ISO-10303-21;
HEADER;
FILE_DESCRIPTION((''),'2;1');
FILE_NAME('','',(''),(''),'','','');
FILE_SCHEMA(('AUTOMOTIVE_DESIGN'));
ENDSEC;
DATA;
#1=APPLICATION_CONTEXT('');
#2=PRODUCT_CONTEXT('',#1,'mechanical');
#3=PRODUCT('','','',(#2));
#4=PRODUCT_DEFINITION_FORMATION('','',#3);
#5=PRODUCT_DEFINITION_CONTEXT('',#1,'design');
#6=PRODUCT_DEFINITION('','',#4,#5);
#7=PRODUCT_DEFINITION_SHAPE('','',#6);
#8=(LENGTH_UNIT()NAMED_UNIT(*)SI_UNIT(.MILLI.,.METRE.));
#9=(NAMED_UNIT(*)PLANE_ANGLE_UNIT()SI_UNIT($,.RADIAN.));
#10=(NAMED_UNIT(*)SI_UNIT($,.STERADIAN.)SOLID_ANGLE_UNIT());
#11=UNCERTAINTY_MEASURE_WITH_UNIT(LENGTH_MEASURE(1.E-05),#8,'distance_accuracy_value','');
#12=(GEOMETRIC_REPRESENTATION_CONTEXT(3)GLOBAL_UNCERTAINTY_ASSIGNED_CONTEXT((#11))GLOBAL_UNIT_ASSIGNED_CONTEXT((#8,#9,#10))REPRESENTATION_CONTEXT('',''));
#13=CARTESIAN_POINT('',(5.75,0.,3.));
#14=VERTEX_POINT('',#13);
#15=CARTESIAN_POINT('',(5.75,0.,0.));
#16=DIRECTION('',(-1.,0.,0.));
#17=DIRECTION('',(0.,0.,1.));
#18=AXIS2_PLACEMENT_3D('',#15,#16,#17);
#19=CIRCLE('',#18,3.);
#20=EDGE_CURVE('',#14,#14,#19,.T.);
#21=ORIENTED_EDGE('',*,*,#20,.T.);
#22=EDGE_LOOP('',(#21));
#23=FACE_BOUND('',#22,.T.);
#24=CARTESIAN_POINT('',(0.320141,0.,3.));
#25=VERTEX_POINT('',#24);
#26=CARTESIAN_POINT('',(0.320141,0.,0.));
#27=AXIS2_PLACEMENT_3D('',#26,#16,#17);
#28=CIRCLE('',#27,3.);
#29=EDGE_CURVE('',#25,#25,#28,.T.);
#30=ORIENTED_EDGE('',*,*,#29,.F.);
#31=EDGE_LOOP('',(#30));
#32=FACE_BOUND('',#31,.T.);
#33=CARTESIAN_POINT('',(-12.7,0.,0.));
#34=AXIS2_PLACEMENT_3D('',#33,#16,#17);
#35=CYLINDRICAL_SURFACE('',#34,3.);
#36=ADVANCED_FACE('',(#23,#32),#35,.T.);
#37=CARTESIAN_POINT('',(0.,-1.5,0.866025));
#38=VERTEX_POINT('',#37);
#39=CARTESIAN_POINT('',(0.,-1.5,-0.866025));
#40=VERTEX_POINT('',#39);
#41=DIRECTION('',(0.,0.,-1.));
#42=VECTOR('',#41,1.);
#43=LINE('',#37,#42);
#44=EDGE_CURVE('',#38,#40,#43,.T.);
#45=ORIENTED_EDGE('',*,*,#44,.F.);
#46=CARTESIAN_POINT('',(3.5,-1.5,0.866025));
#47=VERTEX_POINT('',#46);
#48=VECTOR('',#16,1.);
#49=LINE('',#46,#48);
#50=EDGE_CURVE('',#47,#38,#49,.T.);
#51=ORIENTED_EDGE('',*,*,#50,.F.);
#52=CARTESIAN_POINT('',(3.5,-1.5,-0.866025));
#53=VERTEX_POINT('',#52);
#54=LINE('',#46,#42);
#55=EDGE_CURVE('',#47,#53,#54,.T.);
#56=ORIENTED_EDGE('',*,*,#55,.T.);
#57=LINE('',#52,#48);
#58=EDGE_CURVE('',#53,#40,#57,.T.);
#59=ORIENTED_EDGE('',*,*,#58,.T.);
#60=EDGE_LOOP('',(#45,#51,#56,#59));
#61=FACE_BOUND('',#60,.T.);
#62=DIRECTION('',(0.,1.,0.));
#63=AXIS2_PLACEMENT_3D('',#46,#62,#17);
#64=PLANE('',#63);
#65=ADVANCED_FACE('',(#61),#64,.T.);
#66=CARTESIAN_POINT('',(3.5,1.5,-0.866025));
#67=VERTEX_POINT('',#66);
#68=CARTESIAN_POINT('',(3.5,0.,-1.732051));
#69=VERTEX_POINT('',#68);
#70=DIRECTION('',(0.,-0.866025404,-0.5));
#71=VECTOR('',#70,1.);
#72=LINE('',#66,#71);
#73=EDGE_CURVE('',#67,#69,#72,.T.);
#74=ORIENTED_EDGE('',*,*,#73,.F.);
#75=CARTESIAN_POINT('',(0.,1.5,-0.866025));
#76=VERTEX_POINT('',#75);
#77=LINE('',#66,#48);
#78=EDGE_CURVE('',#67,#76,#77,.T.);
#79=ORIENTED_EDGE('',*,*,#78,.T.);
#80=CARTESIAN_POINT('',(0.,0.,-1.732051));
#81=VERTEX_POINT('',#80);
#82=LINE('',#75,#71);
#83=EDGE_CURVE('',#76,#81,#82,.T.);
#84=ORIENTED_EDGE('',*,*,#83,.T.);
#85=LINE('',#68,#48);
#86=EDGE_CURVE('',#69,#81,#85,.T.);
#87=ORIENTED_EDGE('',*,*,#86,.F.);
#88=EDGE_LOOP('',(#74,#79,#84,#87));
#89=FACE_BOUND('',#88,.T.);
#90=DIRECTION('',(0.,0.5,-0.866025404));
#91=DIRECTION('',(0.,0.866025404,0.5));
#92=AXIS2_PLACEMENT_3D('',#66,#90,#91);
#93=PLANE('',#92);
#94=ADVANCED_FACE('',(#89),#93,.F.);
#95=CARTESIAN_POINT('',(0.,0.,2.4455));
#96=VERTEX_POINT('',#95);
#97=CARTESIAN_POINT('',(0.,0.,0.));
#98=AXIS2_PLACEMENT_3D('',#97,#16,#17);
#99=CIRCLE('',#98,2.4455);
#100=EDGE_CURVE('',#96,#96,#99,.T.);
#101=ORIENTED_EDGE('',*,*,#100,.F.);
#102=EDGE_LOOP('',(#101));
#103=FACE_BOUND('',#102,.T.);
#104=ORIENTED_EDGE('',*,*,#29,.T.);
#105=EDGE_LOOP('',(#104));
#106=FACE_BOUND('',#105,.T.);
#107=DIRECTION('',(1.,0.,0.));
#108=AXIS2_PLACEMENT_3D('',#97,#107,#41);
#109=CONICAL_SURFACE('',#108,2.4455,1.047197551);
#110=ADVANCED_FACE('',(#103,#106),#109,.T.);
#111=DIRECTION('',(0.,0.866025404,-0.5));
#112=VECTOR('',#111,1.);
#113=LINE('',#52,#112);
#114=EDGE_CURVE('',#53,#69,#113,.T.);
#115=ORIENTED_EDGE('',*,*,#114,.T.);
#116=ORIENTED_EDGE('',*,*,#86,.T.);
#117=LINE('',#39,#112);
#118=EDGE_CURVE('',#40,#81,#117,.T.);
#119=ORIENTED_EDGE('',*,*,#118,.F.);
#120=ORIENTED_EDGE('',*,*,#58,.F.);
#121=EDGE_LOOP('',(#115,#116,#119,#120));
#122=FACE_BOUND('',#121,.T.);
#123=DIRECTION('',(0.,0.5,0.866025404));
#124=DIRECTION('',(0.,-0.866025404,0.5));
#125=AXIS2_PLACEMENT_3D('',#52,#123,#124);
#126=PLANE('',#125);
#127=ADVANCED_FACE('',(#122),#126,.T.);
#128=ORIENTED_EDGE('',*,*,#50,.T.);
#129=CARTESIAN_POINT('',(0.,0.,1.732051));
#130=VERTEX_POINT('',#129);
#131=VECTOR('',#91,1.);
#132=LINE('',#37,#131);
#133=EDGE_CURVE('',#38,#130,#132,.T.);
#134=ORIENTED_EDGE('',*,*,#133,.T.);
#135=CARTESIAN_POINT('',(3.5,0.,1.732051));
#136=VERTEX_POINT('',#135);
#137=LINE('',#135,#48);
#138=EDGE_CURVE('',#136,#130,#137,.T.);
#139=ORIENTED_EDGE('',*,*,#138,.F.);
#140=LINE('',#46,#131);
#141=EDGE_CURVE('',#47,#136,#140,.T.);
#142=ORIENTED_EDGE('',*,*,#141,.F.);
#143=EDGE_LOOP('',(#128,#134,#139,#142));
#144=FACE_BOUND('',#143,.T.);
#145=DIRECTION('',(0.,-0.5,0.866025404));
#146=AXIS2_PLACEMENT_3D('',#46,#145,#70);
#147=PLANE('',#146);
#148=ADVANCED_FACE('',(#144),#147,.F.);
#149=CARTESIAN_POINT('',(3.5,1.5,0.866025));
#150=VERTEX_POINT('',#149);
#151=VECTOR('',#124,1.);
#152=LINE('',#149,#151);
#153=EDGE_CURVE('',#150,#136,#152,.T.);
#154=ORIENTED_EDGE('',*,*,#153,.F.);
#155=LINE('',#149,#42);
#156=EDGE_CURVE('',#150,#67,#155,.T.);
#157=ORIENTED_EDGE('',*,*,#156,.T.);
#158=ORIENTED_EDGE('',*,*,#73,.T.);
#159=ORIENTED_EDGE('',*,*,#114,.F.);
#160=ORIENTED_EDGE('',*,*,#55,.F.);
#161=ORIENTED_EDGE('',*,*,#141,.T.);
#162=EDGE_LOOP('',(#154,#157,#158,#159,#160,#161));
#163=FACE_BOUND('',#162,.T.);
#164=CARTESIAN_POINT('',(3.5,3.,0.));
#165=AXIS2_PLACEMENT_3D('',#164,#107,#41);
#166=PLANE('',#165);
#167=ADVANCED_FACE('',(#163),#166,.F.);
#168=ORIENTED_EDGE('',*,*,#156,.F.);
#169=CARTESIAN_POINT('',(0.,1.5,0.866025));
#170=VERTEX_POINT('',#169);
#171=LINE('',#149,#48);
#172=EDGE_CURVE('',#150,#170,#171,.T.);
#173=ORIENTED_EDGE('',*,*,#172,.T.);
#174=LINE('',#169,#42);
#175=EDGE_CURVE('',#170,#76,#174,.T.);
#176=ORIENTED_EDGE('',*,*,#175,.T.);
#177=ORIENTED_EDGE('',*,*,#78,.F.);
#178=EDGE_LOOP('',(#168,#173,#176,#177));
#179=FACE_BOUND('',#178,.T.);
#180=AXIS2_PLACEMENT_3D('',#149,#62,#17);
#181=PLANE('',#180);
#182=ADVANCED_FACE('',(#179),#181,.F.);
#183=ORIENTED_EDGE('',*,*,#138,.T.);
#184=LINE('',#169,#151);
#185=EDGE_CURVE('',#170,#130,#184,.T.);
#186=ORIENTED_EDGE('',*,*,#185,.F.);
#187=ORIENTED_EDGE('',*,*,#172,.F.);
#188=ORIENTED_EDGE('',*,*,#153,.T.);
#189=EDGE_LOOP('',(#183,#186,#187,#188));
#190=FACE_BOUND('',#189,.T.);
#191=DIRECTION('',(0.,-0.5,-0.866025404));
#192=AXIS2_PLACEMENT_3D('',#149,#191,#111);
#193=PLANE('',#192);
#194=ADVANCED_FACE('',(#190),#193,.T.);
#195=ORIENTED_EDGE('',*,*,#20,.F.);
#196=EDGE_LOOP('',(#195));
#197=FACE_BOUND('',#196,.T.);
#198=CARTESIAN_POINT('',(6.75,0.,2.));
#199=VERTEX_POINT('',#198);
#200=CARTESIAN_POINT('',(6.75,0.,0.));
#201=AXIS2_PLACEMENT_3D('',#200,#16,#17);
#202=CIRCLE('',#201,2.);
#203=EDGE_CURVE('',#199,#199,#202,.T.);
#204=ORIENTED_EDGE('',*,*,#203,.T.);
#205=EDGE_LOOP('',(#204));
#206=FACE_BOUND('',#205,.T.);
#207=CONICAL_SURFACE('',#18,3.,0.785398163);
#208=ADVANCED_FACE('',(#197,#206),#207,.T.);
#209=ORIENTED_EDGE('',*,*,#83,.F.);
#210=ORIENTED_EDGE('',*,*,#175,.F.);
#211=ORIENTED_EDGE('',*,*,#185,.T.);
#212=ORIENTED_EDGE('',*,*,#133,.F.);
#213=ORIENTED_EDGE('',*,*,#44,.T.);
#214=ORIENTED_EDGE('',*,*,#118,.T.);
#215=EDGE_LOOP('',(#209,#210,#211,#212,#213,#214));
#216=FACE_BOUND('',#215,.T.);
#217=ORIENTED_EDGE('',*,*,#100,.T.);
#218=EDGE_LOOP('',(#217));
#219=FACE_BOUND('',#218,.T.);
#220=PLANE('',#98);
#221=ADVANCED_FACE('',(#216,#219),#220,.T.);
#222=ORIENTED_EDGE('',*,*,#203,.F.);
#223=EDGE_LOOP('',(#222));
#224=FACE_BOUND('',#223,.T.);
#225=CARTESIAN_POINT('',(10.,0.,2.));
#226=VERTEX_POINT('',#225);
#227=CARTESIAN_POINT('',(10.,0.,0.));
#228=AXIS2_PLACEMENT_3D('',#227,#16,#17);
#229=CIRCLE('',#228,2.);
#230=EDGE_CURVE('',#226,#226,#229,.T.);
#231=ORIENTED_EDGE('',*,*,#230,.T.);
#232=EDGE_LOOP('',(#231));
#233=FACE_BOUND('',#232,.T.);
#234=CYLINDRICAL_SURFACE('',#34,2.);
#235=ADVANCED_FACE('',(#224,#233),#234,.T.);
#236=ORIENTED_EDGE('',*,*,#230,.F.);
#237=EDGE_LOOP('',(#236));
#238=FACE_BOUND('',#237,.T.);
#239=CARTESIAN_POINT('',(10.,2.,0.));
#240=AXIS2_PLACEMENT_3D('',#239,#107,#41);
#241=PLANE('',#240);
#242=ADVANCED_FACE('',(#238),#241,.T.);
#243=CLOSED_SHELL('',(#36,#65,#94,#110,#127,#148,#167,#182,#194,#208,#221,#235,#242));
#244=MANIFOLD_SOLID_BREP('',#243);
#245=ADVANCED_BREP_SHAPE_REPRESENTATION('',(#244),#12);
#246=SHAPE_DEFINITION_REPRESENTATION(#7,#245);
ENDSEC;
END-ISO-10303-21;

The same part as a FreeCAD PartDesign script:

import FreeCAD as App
import Part
import Sketcher
from FreeCAD import Vector
Q = App.Units.Quantity

doc = App.newDocument("Part")
body = doc.addObject("PartDesign::Body", "Body")

# Sketch on XY plane
sketch1 = doc.addObject("Sketcher::SketchObject", "Sketch")
body.addObject(sketch1)
sketch1.AttachmentSupport = (doc.XY_Plane, [""])
sketch1.MapMode = "FlatFace"
sketch1.addGeometry(Part.LineSegment(Vector(0, 2.4455, 0), Vector(0, 0, 0)), False)
sketch1.addGeometry(Part.LineSegment(Vector(0, 0, 0), Vector(10, 0, 0)), False)
sketch1.addGeometry(Part.LineSegment(Vector(10, 0, 0), Vector(10, 2, 0)), False)
sketch1.addGeometry(Part.LineSegment(Vector(10, 2, 0), Vector(6.75, 2, 0)), False)
sketch1.addGeometry(Part.LineSegment(Vector(6.75, 2, 0), Vector(5.75, 3, 0)), False)
sketch1.addGeometry(Part.LineSegment(Vector(5.75, 3, 0), Vector(0.320141, 3, 0)), False)
sketch1.addGeometry(Part.LineSegment(Vector(0.320141, 3, 0), Vector(0, 2.4455, 0)), False)
sketch1.addConstraint(Sketcher.Constraint("Coincident", 0, 2, 1, 1))
sketch1.addConstraint(Sketcher.Constraint("Coincident", 1, 2, 2, 1))
sketch1.addConstraint(Sketcher.Constraint("Coincident", 2, 2, 3, 1))
sketch1.addConstraint(Sketcher.Constraint("Coincident", 3, 2, 4, 1))
sketch1.addConstraint(Sketcher.Constraint("Coincident", 4, 2, 5, 1))
sketch1.addConstraint(Sketcher.Constraint("Coincident", 5, 2, 6, 1))
sketch1.addConstraint(Sketcher.Constraint("Coincident", 6, 2, 0, 1))
sketch1.addConstraint(Sketcher.Constraint("Vertical", 0))
sketch1.addConstraint(Sketcher.Constraint("Horizontal", 1))
sketch1.addConstraint(Sketcher.Constraint("Vertical", 2))
sketch1.addConstraint(Sketcher.Constraint("Horizontal", 3))
sketch1.addConstraint(Sketcher.Constraint("Horizontal", 5))
sketch1.addConstraint(Sketcher.Constraint("Coincident", 0, 2, -1, 1))
sketch1.addConstraint(Sketcher.Constraint("DistanceX", 1, 1, 1, 2, 10.0))
sketch1.addConstraint(Sketcher.Constraint("DistanceY", 2, 1, 2, 2, 2.0))
sketch1.addConstraint(Sketcher.Constraint("Angle", 4, Q("135 deg")))
sketch1.addConstraint(Sketcher.Constraint("Angle", 6, Q("-120 deg")))
sketch1.addConstraint(Sketcher.Constraint("DistanceY", -1, 1, 4, 2, 3.0))
sketch1.addConstraint(Sketcher.Constraint("DistanceX", 3, 2, 3, 1, 3.25))
sketch1.addConstraint(Sketcher.Constraint("DistanceY", 0, 2, 0, 1, 2.4455))
revolution = doc.addObject("PartDesign::Revolution", "Revolution")
body.addObject(revolution)
revolution.Profile = sketch1
revolution.ReferenceAxis = (sketch1, ["H_Axis"])
revolution.Angle = 360

# Sketch on YZ plane
sketch2 = doc.addObject("Sketcher::SketchObject", "Sketch001")
body.addObject(sketch2)
sketch2.AttachmentSupport = (doc.YZ_Plane, [""])
sketch2.MapMode = "FlatFace"
sketch2.addGeometry(Part.LineSegment(Vector(1.5, 0.866025, 0), Vector(1.5, -0.866025, 0)), False)
sketch2.addGeometry(Part.LineSegment(Vector(1.5, -0.866025, 0), Vector(0, -1.732051, 0)), False)
sketch2.addGeometry(Part.LineSegment(Vector(0, -1.732051, 0), Vector(-1.5, -0.866025, 0)), False)
sketch2.addGeometry(Part.LineSegment(Vector(-1.5, -0.866025, 0), Vector(-1.5, 0.866025, 0)), False)
sketch2.addGeometry(Part.LineSegment(Vector(-1.5, 0.866025, 0), Vector(0, 1.732051, 0)), False)
sketch2.addGeometry(Part.LineSegment(Vector(0, 1.732051, 0), Vector(1.5, 0.866025, 0)), False)
sketch2.addConstraint(Sketcher.Constraint("Coincident", 0, 2, 1, 1))
sketch2.addConstraint(Sketcher.Constraint("Coincident", 1, 2, 2, 1))
sketch2.addConstraint(Sketcher.Constraint("Coincident", 2, 2, 3, 1))
sketch2.addConstraint(Sketcher.Constraint("Coincident", 3, 2, 4, 1))
sketch2.addConstraint(Sketcher.Constraint("Coincident", 4, 2, 5, 1))
sketch2.addConstraint(Sketcher.Constraint("Coincident", 5, 2, 0, 1))
sketch2.addConstraint(Sketcher.Constraint("Vertical", 0))
sketch2.addConstraint(Sketcher.Constraint("Vertical", 3))
sketch2.addConstraint(Sketcher.Constraint("Symmetric", 0, 2, 3, 2, -1, 1))
sketch2.addConstraint(Sketcher.Constraint("Symmetric", 1, 2, 4, 2, -1, 1))
sketch2.addConstraint(Sketcher.Constraint("PointOnObject", 1, 2, -2))
sketch2.addConstraint(Sketcher.Constraint("Parallel", 2, 5))
sketch2.addConstraint(Sketcher.Constraint("Horizontal", 0, 2, 2, 2))
sketch2.addConstraint(Sketcher.Constraint("Angle", 1, Q("-150 deg")))
sketch2.addConstraint(Sketcher.Constraint("DistanceX", 2, 2, 0, 2, 3.0))
sketch2.addConstraint(Sketcher.Constraint("DistanceY", 0, 2, 0, 1, 1.732051))
pocket1 = doc.addObject("PartDesign::Pocket", "Pocket")
body.addObject(pocket1)
pocket1.Profile = sketch2
pocket1.Length = 3.5
pocket1.Reversed = True

doc.recompute()
